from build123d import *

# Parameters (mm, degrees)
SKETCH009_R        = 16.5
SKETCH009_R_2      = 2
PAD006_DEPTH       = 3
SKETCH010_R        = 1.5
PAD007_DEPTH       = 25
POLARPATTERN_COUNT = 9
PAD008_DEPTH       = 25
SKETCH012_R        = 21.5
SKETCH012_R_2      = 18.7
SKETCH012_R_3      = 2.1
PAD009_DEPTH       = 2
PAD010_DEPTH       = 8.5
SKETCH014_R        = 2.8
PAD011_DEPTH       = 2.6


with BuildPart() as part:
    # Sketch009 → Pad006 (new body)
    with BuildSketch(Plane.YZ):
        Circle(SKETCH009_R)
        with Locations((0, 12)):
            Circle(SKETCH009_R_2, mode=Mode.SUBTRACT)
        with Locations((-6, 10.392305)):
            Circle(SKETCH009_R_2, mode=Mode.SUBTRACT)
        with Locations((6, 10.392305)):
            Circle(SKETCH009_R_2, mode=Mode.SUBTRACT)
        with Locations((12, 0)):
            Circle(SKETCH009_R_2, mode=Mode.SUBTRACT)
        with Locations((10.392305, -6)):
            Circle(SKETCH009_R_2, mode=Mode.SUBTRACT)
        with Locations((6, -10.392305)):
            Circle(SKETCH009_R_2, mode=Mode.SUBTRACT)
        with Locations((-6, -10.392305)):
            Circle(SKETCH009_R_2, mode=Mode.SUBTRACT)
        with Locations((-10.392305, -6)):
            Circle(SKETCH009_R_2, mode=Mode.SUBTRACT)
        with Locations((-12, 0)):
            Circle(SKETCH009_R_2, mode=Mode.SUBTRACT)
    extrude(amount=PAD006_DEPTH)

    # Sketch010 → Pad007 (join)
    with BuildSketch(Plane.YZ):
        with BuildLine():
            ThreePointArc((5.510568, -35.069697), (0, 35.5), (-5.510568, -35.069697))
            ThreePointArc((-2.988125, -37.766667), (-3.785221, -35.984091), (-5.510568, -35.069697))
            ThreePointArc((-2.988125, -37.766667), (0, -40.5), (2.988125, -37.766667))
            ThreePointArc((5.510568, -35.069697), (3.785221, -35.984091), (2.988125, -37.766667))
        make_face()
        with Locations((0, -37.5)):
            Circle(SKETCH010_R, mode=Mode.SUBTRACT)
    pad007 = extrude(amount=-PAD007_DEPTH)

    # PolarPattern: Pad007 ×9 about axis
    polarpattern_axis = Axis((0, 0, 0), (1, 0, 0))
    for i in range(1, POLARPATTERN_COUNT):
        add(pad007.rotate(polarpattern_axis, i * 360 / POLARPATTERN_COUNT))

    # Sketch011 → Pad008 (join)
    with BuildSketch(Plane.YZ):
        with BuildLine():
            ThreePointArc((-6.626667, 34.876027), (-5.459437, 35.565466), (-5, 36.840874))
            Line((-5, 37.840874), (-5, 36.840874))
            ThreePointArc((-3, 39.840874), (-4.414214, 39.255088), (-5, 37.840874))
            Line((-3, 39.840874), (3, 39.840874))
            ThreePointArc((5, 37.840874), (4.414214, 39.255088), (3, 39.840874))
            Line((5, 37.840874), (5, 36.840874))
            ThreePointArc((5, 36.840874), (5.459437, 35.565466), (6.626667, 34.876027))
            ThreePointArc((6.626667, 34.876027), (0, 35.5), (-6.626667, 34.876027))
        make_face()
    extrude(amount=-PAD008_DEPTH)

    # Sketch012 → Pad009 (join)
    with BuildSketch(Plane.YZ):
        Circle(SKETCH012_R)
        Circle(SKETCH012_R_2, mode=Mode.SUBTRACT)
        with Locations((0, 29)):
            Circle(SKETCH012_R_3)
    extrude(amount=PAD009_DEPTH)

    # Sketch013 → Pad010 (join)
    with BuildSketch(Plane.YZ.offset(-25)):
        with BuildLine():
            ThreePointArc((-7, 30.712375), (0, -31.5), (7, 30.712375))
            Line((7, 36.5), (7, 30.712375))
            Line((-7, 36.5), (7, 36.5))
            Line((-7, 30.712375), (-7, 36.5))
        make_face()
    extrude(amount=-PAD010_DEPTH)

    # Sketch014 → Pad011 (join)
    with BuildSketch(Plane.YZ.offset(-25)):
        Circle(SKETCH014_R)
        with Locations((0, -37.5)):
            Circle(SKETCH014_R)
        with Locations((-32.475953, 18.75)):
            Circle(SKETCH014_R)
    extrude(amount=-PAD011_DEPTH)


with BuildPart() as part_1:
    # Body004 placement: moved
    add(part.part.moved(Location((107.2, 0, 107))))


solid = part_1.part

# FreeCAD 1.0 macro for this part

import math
import FreeCAD as App
import Part
import Sketcher

doc = App.newDocument("Part")
body = doc.addObject("PartDesign::Body", "Body")

# Sketch on YZ plane
sketch1 = body.newObject("Sketcher::SketchObject", "Sketch")
sketch1.AttachmentSupport = (doc.getObject("YZ_Plane"), [""])
sketch1.MapMode = "FlatFace"
sketch1.addGeometry(Part.Circle(App.Vector(0, 0, 0), App.Vector(0, 0, 1), 16.5), False)
sketch1.addGeometry(Part.Circle(App.Vector(-10.4, -6, 0), App.Vector(0, 0, 1), 2), False)
sketch1.addGeometry(Part.Circle(App.Vector(-6, -10.4, 0), App.Vector(0, 0, 1), 2), False)
sketch1.addGeometry(Part.Circle(App.Vector(-12, 0, 0), App.Vector(0, 0, 1), 2), False)
sketch1.addGeometry(Part.Circle(App.Vector(6, -10.4, 0), App.Vector(0, 0, 1), 2), False)
sketch1.addGeometry(Part.Circle(App.Vector(10.4, -6, 0), App.Vector(0, 0, 1), 2), False)
sketch1.addGeometry(Part.Circle(App.Vector(12, 0, 0), App.Vector(0, 0, 1), 2), False)
sketch1.addGeometry(Part.Circle(App.Vector(-6, 10.4, 0), App.Vector(0, 0, 1), 2), False)
sketch1.addGeometry(Part.Circle(App.Vector(6, 10.4, 0), App.Vector(0, 0, 1), 2), False)
sketch1.addGeometry(Part.Circle(App.Vector(0, 12, 0), App.Vector(0, 0, 1), 2), False)
sketch1.addConstraint(Sketcher.Constraint("Coincident", 0, 3, -1, 1))
sketch1.addConstraint(Sketcher.Constraint("Equal", 1, 2))
sketch1.addConstraint(Sketcher.Constraint("Equal", 2, 3))
sketch1.addConstraint(Sketcher.Constraint("Equal", 3, 4))
sketch1.addConstraint(Sketcher.Constraint("Equal", 4, 5))
sketch1.addConstraint(Sketcher.Constraint("Equal", 5, 6))
sketch1.addConstraint(Sketcher.Constraint("Equal", 6, 7))
sketch1.addConstraint(Sketcher.Constraint("Equal", 7, 8))
sketch1.addConstraint(Sketcher.Constraint("Equal", 8, 9))
sketch1.addConstraint(Sketcher.Constraint("Symmetric", 3, 3, 6, 3, -1, 1))
sketch1.addConstraint(Sketcher.Constraint("Symmetric", 4, 3, 7, 3, -1, 1))
sketch1.addConstraint(Sketcher.Constraint("Symmetric", 2, 3, 8, 3, -1, 1))
sketch1.addConstraint(Sketcher.Constraint("Symmetric", 2, 3, 4, 3, -2))
sketch1.addConstraint(Sketcher.Constraint("Symmetric", 1, 3, 5, 3, -2))
sketch1.addConstraint(Sketcher.Constraint("PointOnObject", 3, 3, -1))
sketch1.addConstraint(Sketcher.Constraint("PointOnObject", 9, 3, -2))
sketch1.addConstraint(Sketcher.Constraint("Diameter", 0, 33.0))
sketch1.addConstraint(Sketcher.Constraint("Diameter", 1, 4.0))
sketch1.addConstraint(Sketcher.Constraint("DistanceY", 1, 3, -1, 1, 6.0))
sketch1.addConstraint(Sketcher.Constraint("DistanceX", 2, 3, -1, 1, 6.0))
sketch1.addConstraint(Sketcher.Constraint("DistanceX", 3, 3, -1, 1, 12.0))
sketch1.addConstraint(Sketcher.Constraint("DistanceY", -1, 1, 9, 3, 12.0))
sketch1.addConstraint(Sketcher.Constraint("DistanceX", 1, 3, 5, 3, 20.78461))
sketch1.addConstraint(Sketcher.Constraint("DistanceY", 2, 3, 7, 3, 20.78461))
pad1 = body.newObject("PartDesign::Pad", "Pad")
pad1.Profile = sketch1
pad1.Length = 3

# Sketch on YZ plane
sketch2 = body.newObject("Sketcher::SketchObject", "Sketch001")
sketch2.AttachmentSupport = (doc.getObject("YZ_Plane"), [""])
sketch2.MapMode = "FlatFace"
sketch2.addGeometry(Part.ArcOfCircle(Part.Circle(App.Vector(0, 0, 0), App.Vector(0, 0, 1), 35.5), math.radians(-81), math.radians(261)), False)
sketch2.addGeometry(Part.ArcOfCircle(Part.Circle(App.Vector(-6, -38, 0), App.Vector(0, 0, 1), 3), math.radians(5), math.radians(81)), False)
sketch2.addGeometry(Part.ArcOfCircle(Part.Circle(App.Vector(0, -37.5, 0), App.Vector(0, 0, 1), 3), math.radians(-175), math.radians(-5)), False)
sketch2.addGeometry(Part.ArcOfCircle(Part.Circle(App.Vector(6, -38, 0), App.Vector(0, 0, 1), 3), math.radians(99), math.radians(175)), False)
sketch2.addGeometry(Part.Circle(App.Vector(0, -37.5, 0), App.Vector(0, 0, 1), 1.5), False)
sketch2.addConstraint(Sketcher.Constraint("Tangent", 0, 2, 1, 2))
sketch2.addConstraint(Sketcher.Constraint("Tangent", 1, 1, 2, 1))
sketch2.addConstraint(Sketcher.Constraint("Tangent", 2, 2, 3, 2))
sketch2.addConstraint(Sketcher.Constraint("Tangent", 3, 1, 0, 1))
sketch2.addConstraint(Sketcher.Constraint("Coincident", 0, 3, -1, 1))
sketch2.addConstraint(Sketcher.Constraint("Coincident", 4, 3, 2, 3))
sketch2.addConstraint(Sketcher.Constraint("Equal", 1, 2))
sketch2.addConstraint(Sketcher.Constraint("Equal", 2, 3))
sketch2.addConstraint(Sketcher.Constraint("PointOnObject", 2, 3, -2))
sketch2.addConstraint(Sketcher.Constraint("Diameter", 4, 3.0))
sketch2.addConstraint(Sketcher.Constraint("Radius", 1, 2.999999))
sketch2.addConstraint(Sketcher.Constraint("Radius", 0, 35.5))
sketch2.addConstraint(Sketcher.Constraint("DistanceY", 2, 3, -1, 1, 37.5))
pad2 = body.newObject("PartDesign::Pad", "Pad001")
pad2.Profile = sketch2
pad2.Length = 25
pad2.Reversed = True
doc.recompute()

polarpattern = body.newObject("PartDesign::PolarPattern", "PolarPattern")
polarpattern.Originals = [pad2]
polarpattern.Axis = (doc.getObject("X_Axis"), [""])
polarpattern.Angle = 360
polarpattern.Occurrences = 9
body.Tip = polarpattern

# Sketch on YZ plane
sketch3 = body.newObject("Sketcher::SketchObject", "Sketch002")
sketch3.AttachmentSupport = (doc.getObject("YZ_Plane"), [""])
sketch3.MapMode = "FlatFace"
sketch3.addGeometry(Part.ArcOfCircle(Part.Circle(App.Vector(-7, 36.8, 0), App.Vector(0, 0, 1), 2), math.radians(-79), math.radians(0)), False)
sketch3.addGeometry(Part.ArcOfCircle(Part.Circle(App.Vector(0, 0, 0), App.Vector(0, 0, 1), 35.5), math.radians(79), math.radians(101)), False)
sketch3.addGeometry(Part.ArcOfCircle(Part.Circle(App.Vector(7, 36.8, 0), App.Vector(0, 0, 1), 2), math.radians(-180), math.radians(-101)), False)
sketch3.addGeometry(Part.LineSegment(App.Vector(5, 36.8, 0), App.Vector(5, 37.8, 0)), False)
sketch3.addGeometry(Part.ArcOfCircle(Part.Circle(App.Vector(3, 37.8, 0), App.Vector(0, 0, 1), 2), math.radians(0), math.radians(90)), False)
sketch3.addGeometry(Part.LineSegment(App.Vector(3, 39.8, 0), App.Vector(-3, 39.8, 0)), False)
sketch3.addGeometry(Part.ArcOfCircle(Part.Circle(App.Vector(-3, 37.8, 0), App.Vector(0, 0, 1), 2), math.radians(90), math.radians(180)), False)
sketch3.addGeometry(Part.LineSegment(App.Vector(-5, 37.8, 0), App.Vector(-5, 36.8, 0)), False)
sketch3.addConstraint(Sketcher.Constraint("Tangent", 0, 1, 1, 2))
sketch3.addConstraint(Sketcher.Constraint("Tangent", 1, 1, 2, 2))
sketch3.addConstraint(Sketcher.Constraint("Tangent", 2, 1, 3, 1))
sketch3.addConstraint(Sketcher.Constraint("Tangent", 3, 2, 4, 1))
sketch3.addConstraint(Sketcher.Constraint("Tangent", 4, 2, 5, 1))
sketch3.addConstraint(Sketcher.Constraint("Tangent", 5, 2, 6, 1))
sketch3.addConstraint(Sketcher.Constraint("Tangent", 6, 2, 7, 1))
sketch3.addConstraint(Sketcher.Constraint("Tangent", 7, 2, 0, 2))
sketch3.addConstraint(Sketcher.Constraint("Vertical", 3))
sketch3.addConstraint(Sketcher.Constraint("Horizontal", 5))
sketch3.addConstraint(Sketcher.Constraint("Vertical", 7))
sketch3.addConstraint(Sketcher.Constraint("Equal", 0, 2))
sketch3.addConstraint(Sketcher.Constraint("Equal", 4, 6))
sketch3.addConstraint(Sketcher.Constraint("Symmetric", 0, 3, 2, 3, -2))
sketch3.addConstraint(Sketcher.Constraint("Radius", 0, 2.000001))
sketch3.addConstraint(Sketcher.Constraint("Radius", 4, 1.999999))
sketch3.addConstraint(Sketcher.Constraint("DistanceX", 5, 2, 5, 1, 6.0))
sketch3.addConstraint(Sketcher.Constraint("DistanceY", 3, 1, 3, 2, 1.0))
sketch3.addConstraint(Sketcher.Constraint("Radius", 1, 35.49998))
sketch3.addConstraint(Sketcher.Constraint("DistanceY", -1, 1, 0, 3, 36.840874))
pad3 = body.newObject("PartDesign::Pad", "Pad002")
pad3.Profile = sketch3
pad3.Length = 25
pad3.Reversed = True

# Sketch on YZ plane
sketch4 = body.newObject("Sketcher::SketchObject", "Sketch003")
sketch4.AttachmentSupport = (doc.getObject("YZ_Plane"), [""])
sketch4.MapMode = "FlatFace"
sketch4.addGeometry(Part.Circle(App.Vector(0, 0, 0), App.Vector(0, 0, 1), 21.5), False)
sketch4.addGeometry(Part.Circle(App.Vector(0, 0, 0), App.Vector(0, 0, 1), 18.7), False)
sketch4.addGeometry(Part.Circle(App.Vector(0, 29, 0), App.Vector(0, 0, 1), 2.1), False)
sketch4.addConstraint(Sketcher.Constraint("Coincident", 0, 3, -1, 1))
sketch4.addConstraint(Sketcher.Constraint("Coincident", 1, 3, -1, 1))
sketch4.addConstraint(Sketcher.Constraint("PointOnObject", 2, 3, -2))
sketch4.addConstraint(Sketcher.Constraint("Diameter", 0, 43.0))
sketch4.addConstraint(Sketcher.Constraint("Diameter", 1, 37.4))
sketch4.addConstraint(Sketcher.Constraint("Diameter", 2, 4.2))
sketch4.addConstraint(Sketcher.Constraint("DistanceY", -1, 1, 2, 3, 29.0))
pad4 = body.newObject("PartDesign::Pad", "Pad003")
pad4.Profile = sketch4
pad4.Length = 2

# Sketch on YZ plane
sketch5 = body.newObject("Sketcher::SketchObject", "Sketch004")
sketch5.AttachmentSupport = (doc.getObject("YZ_Plane"), [""])
sketch5.MapMode = "FlatFace"
sketch5.AttachmentOffset = App.Placement(App.Vector(0, 0, -25), App.Rotation())
sketch5.addGeometry(Part.ArcOfCircle(Part.Circle(App.Vector(0, 0, 0), App.Vector(0, 0, 1), 31), math.radians(103), math.radians(437)), False)
sketch5.addGeometry(Part.LineSegment(App.Vector(7, 31, 0), App.Vector(7, 36, 0)), False)
sketch5.addGeometry(Part.LineSegment(App.Vector(7, 36, 0), App.Vector(-7, 36, 0)), False)
sketch5.addGeometry(Part.LineSegment(App.Vector(-7, 36, 0), App.Vector(-7, 31, 0)), False)
sketch5.addConstraint(Sketcher.Constraint("Coincident", 0, 2, 1, 1))
sketch5.addConstraint(Sketcher.Constraint("Coincident", 1, 2, 2, 1))
sketch5.addConstraint(Sketcher.Constraint("Coincident", 2, 2, 3, 1))
sketch5.addConstraint(Sketcher.Constraint("Coincident", 3, 2, 0, 1))
sketch5.addConstraint(Sketcher.Constraint("Vertical", 1))
sketch5.addConstraint(Sketcher.Constraint("Horizontal", 2))
sketch5.addConstraint(Sketcher.Constraint("Vertical", 3))
sketch5.addConstraint(Sketcher.Constraint("Coincident", 0, 3, -1, 1))
sketch5.addConstraint(Sketcher.Constraint("Horizontal", 0, 2, 3, 2))
sketch5.addConstraint(Sketcher.Constraint("Radius", 0, 31.5))
sketch5.addConstraint(Sketcher.Constraint("DistanceX", 2, 2, 2, 1, 14.0))
sketch5.addConstraint(Sketcher.Constraint("DistanceY", -1, 1, 1, 2, 36.5))
pad5 = body.newObject("PartDesign::Pad", "Pad004")
pad5.Profile = sketch5
pad5.Length = 8.5
pad5.Reversed = True

# Sketch on YZ plane
sketch6 = body.newObject("Sketcher::SketchObject", "Sketch005")
sketch6.AttachmentSupport = (doc.getObject("YZ_Plane"), [""])
sketch6.MapMode = "FlatFace"
sketch6.AttachmentOffset = App.Placement(App.Vector(0, 0, -25), App.Rotation())
sketch6.addGeometry(Part.Circle(App.Vector(0, 0, 0), App.Vector(0, 0, 1), 2.8), False)
sketch6.addGeometry(Part.Circle(App.Vector(0, -37.5, 0), App.Vector(0, 0, 1), 2.8), False)
sketch6.addGeometry(Part.Circle(App.Vector(-32.5, 18.8, 0), App.Vector(0, 0, 1), 2.8), False)
sketch6.addConstraint(Sketcher.Constraint("Coincident", 0, 3, -1, 1))
sketch6.addConstraint(Sketcher.Constraint("Equal", 0, 1))
sketch6.addConstraint(Sketcher.Constraint("Equal", 1, 2))
sketch6.addConstraint(Sketcher.Constraint("PointOnObject", 1, 3, -2))
sketch6.addConstraint(Sketcher.Constraint("Diameter", 0, 5.6))
sketch6.addConstraint(Sketcher.Constraint("DistanceY", 1, 3, -1, 1, 37.5))
sketch6.addConstraint(Sketcher.Constraint("DistanceY", -1, 1, 2, 3, 18.75))
sketch6.addConstraint(Sketcher.Constraint("DistanceX", 2, 3, -1, 1, 32.475953))
pad6 = body.newObject("PartDesign::Pad", "Pad005")
pad6.Profile = sketch6
pad6.Length = 2.6
pad6.Reversed = True
body2 = doc.addObject("PartDesign::Body", "Body001")
doc.recompute()

body.Placement = App.Placement(App.Vector(107.2, 0, 107), App.Rotation(App.Vector(0, 0, 1), 0))
boolean = body2.newObject("PartDesign::Boolean", "Boolean")
boolean.Type = "Fuse"
boolean.addObjects([body])

doc.recompute()
